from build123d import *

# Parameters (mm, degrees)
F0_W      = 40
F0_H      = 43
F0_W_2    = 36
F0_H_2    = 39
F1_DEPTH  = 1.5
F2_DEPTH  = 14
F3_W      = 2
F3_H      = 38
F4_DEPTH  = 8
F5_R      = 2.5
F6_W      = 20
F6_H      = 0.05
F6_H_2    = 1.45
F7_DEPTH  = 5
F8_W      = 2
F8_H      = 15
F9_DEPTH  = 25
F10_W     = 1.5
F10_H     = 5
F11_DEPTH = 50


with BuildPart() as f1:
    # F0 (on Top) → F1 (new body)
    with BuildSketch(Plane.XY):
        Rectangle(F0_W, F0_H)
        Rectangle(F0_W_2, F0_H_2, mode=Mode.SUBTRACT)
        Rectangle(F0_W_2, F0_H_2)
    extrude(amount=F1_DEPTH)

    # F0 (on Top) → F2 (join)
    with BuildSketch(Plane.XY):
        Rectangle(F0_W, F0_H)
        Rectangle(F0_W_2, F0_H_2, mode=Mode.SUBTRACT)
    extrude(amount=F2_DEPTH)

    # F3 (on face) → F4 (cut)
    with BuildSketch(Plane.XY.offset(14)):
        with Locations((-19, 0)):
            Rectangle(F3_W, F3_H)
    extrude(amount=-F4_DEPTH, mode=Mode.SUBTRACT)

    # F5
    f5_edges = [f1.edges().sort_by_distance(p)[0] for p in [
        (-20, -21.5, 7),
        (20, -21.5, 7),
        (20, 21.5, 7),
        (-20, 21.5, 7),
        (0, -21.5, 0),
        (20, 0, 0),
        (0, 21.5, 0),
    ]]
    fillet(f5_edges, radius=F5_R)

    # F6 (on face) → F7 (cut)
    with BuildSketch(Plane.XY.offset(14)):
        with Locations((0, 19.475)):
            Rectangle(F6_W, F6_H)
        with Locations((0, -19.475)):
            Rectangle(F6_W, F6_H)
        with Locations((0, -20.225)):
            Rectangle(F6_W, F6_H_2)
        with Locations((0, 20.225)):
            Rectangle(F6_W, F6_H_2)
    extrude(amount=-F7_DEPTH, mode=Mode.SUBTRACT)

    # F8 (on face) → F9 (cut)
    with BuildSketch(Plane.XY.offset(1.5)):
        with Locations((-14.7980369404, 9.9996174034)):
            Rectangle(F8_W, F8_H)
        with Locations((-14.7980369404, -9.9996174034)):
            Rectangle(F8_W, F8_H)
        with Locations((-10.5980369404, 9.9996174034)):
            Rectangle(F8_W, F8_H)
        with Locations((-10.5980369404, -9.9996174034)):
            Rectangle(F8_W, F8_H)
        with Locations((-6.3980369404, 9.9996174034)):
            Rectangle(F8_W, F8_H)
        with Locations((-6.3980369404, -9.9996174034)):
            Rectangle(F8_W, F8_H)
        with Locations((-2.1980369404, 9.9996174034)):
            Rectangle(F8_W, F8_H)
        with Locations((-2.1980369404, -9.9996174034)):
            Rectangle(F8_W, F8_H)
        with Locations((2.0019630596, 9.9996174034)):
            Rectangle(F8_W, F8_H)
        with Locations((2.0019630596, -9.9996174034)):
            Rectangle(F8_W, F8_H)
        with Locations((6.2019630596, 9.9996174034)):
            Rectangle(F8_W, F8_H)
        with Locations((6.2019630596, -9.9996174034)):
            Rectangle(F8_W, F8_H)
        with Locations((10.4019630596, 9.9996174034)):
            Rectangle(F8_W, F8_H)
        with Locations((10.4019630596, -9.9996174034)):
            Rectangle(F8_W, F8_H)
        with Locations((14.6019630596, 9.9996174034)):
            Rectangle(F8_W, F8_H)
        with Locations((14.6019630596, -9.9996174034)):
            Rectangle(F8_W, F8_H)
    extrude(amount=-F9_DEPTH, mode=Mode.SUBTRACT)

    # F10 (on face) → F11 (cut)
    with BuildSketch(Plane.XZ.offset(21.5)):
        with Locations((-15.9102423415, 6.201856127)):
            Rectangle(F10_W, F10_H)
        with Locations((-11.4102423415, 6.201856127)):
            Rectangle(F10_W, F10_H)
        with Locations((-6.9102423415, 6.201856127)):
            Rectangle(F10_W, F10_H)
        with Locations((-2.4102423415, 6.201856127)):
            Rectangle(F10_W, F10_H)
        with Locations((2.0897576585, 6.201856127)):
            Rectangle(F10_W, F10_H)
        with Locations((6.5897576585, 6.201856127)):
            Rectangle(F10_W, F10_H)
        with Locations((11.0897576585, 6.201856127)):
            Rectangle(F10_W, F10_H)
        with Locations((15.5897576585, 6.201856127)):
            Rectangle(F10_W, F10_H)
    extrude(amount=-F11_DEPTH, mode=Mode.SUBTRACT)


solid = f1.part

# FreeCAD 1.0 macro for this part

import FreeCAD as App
import Part
import Sketcher
from FreeCAD import Vector
Q = App.Units.Quantity


def edges_at(feature, points):
    """Names of the edges that pass closest to the given points."""
    edges = feature.Shape.Edges
    near = lambda p: min(range(len(edges)), key=lambda i: edges[i].distToShape(Part.Vertex(*p))[0])
    return sorted({f"Edge{near(p) + 1}" for p in points})


def add_polygon(sketch, points):
    """Adds a closed chain of lines whose ends are joined by coincident constraints."""
    first, n = sketch.GeometryCount, len(points)
    for a, b in zip(points, points[1:] + points[:1]):
        sketch.addGeometry(Part.LineSegment(App.Vector(*a, 0), App.Vector(*b, 0)), False)
    for i in range(n):
        sketch.addConstraint(Sketcher.Constraint("Coincident", first + i, 2, first + (i + 1) % n, 1))

doc = App.newDocument("Part")
body = doc.addObject("PartDesign::Body", "Body")

# Sketch on XY plane
sketch1 = body.newObject("Sketcher::SketchObject", "Sketch")
sketch1.AttachmentSupport = (doc.getObject("XY_Plane"), [""])
sketch1.MapMode = "FlatFace"
add_polygon(sketch1, [(-20, 22), (-20, -22), (20, -22), (20, 22)])  # lines 0-3
sketch1.addConstraint([
    Sketcher.Constraint("Vertical", 0),
    Sketcher.Constraint("Horizontal", 1),
    Sketcher.Constraint("Vertical", 2),
    Sketcher.Constraint("Horizontal", 3),
    Sketcher.Constraint("Symmetric", 0, 2, 2, 2, -1, 1),
    Sketcher.Constraint("DistanceX", 1, 1, 1, 2, Q("40 mm")),
    Sketcher.Constraint("DistanceY", 0, 2, 0, 1, Q("43 mm")),
])
pad1 = body.newObject("PartDesign::Pad", "Pad")
pad1.Profile = sketch1
pad1.Length = 1.5

# Sketch on XY plane
sketch2 = body.newObject("Sketcher::SketchObject", "Sketch001")
sketch2.AttachmentSupport = (doc.getObject("XY_Plane"), [""])
sketch2.MapMode = "FlatFace"
add_polygon(sketch2, [(-20, 22), (-20, -22), (20, -22), (20, 22)])  # lines 0-3
add_polygon(sketch2, [(18, -20), (-18, -20), (-18, 20), (18, 20)])  # lines 4-7
sketch2.addConstraint([
    Sketcher.Constraint("Vertical", 0),
    Sketcher.Constraint("Horizontal", 1),
    Sketcher.Constraint("Vertical", 2),
    Sketcher.Constraint("Horizontal", 3),
    Sketcher.Constraint("Horizontal", 4),
    Sketcher.Constraint("Vertical", 5),
    Sketcher.Constraint("Horizontal", 6),
    Sketcher.Constraint("Vertical", 7),
    Sketcher.Constraint("Symmetric", 0, 2, 2, 2, -1, 1),
    Sketcher.Constraint("Symmetric", 4, 2, 6, 2, -1, 1),
    Sketcher.Constraint("DistanceX", 1, 1, 1, 2, Q("40 mm")),
    Sketcher.Constraint("DistanceX", 4, 2, 4, 1, Q("36 mm")),
    Sketcher.Constraint("DistanceY", 0, 2, 0, 1, Q("43 mm")),
    Sketcher.Constraint("DistanceY", 5, 1, 5, 2, Q("39 mm")),
])
pad2 = body.newObject("PartDesign::Pad", "Pad001")
pad2.Profile = sketch2
pad2.Length = 14

# Sketch on XY plane
sketch3 = body.newObject("Sketcher::SketchObject", "Sketch002")
sketch3.AttachmentSupport = (doc.getObject("XY_Plane"), [""])
sketch3.MapMode = "FlatFace"
sketch3.AttachmentOffset = App.Placement(Vector(0, 0, 14), App.Rotation())
add_polygon(sketch3, [(-20, 19), (-20, -19), (-18, -19), (-18, 19)])  # lines 0-3
sketch3.addConstraint([
    Sketcher.Constraint("Vertical", 0),
    Sketcher.Constraint("Horizontal", 1),
    Sketcher.Constraint("Vertical", 2),
    Sketcher.Constraint("Horizontal", 3),
    Sketcher.Constraint("DistanceX", 1, 1, 1, 2, Q("2 mm")),
    Sketcher.Constraint("DistanceY", 0, 2, 0, 1, Q("38 mm")),
    Sketcher.Constraint("DistanceX", 0, 2, -1, 1, Q("20 mm")),
    Sketcher.Constraint("DistanceY", 0, 2, -1, 1, Q("19 mm")),
])
pocket1 = body.newObject("PartDesign::Pocket", "Pocket")
pocket1.Profile = sketch3
pocket1.Length = 8
doc.recompute()

fillet = body.newObject("PartDesign::Fillet", "Fillet")
fillet.Base = (pocket1, edges_at(pocket1, [
    (-20, -21.5, 7),
    (20, -21.5, 7),
    (20, 21.5, 7),
    (-20, 21.5, 7),
    (0, -21.5, 0),
    (20, 0, 0),
    (0, 21.5, 0),
]))
fillet.Radius = 2.5

# Sketch on XY plane
sketch4 = body.newObject("Sketcher::SketchObject", "Sketch003")
sketch4.AttachmentSupport = (doc.getObject("XY_Plane"), [""])
sketch4.MapMode = "FlatFace"
sketch4.AttachmentOffset = App.Placement(Vector(0, 0, 14), App.Rotation())
add_polygon(sketch4, [(-10, 19.4), (10, 19.4), (10, 20.9), (-10, 20.9)])  # lines 0-3
add_polygon(sketch4, [(-10, -19.4), (-10, -20.9), (10, -20.9), (10, -19.4)])  # lines 4-7
sketch4.addConstraint([
    Sketcher.Constraint("Horizontal", 0),
    Sketcher.Constraint("Vertical", 1),
    Sketcher.Constraint("Horizontal", 2),
    Sketcher.Constraint("Vertical", 3),
    Sketcher.Constraint("Vertical", 4),
    Sketcher.Constraint("Horizontal", 5),
    Sketcher.Constraint("Vertical", 6),
    Sketcher.Constraint("Horizontal", 7),
    Sketcher.Constraint("Symmetric", 1, 2, 4, 2, -1, 1),
    Sketcher.Constraint("Symmetric", 3, 2, 6, 2, -1, 1),
    Sketcher.Constraint("Vertical", 3, 2, 4, 2),
    Sketcher.Constraint("DistanceX", 0, 1, 0, 2, Q("20 mm")),
    Sketcher.Constraint("DistanceY", 1, 1, 1, 2, Q("1.5 mm")),
    Sketcher.Constraint("DistanceY", 4, 2, 3, 2, Q("40.4 mm")),
])
pocket2 = body.newObject("PartDesign::Pocket", "Pocket001")
pocket2.Profile = sketch4
pocket2.Length = 5

# Sketch on XY plane
sketch5 = body.newObject("Sketcher::SketchObject", "Sketch004")
sketch5.AttachmentSupport = (doc.getObject("XY_Plane"), [""])
sketch5.MapMode = "FlatFace"
sketch5.AttachmentOffset = App.Placement(Vector(0, 0, 1.5), App.Rotation())
add_polygon(sketch5, [(-15.8, 17.5), (-15.8, 2.5), (-13.8, 2.5), (-13.8, 17.5)])  # lines 0-3
add_polygon(sketch5, [(-15.8, -2.5), (-15.8, -17.5), (-13.8, -17.5), (-13.8, -2.5)])  # lines 4-7
add_polygon(sketch5, [(-11.6, 17.5), (-11.6, 2.5), (-9.6, 2.5), (-9.6, 17.5)])  # lines 8-11
add_polygon(sketch5, [(-11.6, -2.5), (-11.6, -17.5), (-9.6, -17.5), (-9.6, -2.5)])  # lines 12-15
add_polygon(sketch5, [(-7.4, 17.5), (-7.4, 2.5), (-5.4, 2.5), (-5.4, 17.5)])  # lines 16-19
add_polygon(sketch5, [(-7.4, -2.5), (-7.4, -17.5), (-5.4, -17.5), (-5.4, -2.5)])  # lines 20-23
add_polygon(sketch5, [(-3.2, 17.5), (-3.2, 2.5), (-1.2, 2.5), (-1.2, 17.5)])  # lines 24-27
add_polygon(sketch5, [(-3.2, -2.5), (-3.2, -17.5), (-1.2, -17.5), (-1.2, -2.5)])  # lines 28-31
add_polygon(sketch5, [(1, 17.5), (1, 2.5), (3, 2.5), (3, 17.5)])  # lines 32-35
add_polygon(sketch5, [(1, -2.5), (1, -17.5), (3, -17.5), (3, -2.5)])  # lines 36-39
add_polygon(sketch5, [(5.2, 17.5), (5.2, 2.5), (7.2, 2.5), (7.2, 17.5)])  # lines 40-43
add_polygon(sketch5, [(5.2, -2.5), (5.2, -17.5), (7.2, -17.5), (7.2, -2.5)])  # lines 44-47
add_polygon(sketch5, [(9.4, 17.5), (9.4, 2.5), (11.4, 2.5), (11.4, 17.5)])  # lines 48-51
add_polygon(sketch5, [(9.4, -2.5), (9.4, -17.5), (11.4, -17.5), (11.4, -2.5)])  # lines 52-55
add_polygon(sketch5, [(13.6, 17.5), (13.6, 2.5), (15.6, 2.5), (15.6, 17.5)])  # lines 56-59
add_polygon(sketch5, [(13.6, -2.5), (13.6, -17.5), (15.6, -17.5), (15.6, -2.5)])  # lines 60-63
sketch5.addConstraint([
    Sketcher.Constraint("Vertical", 0),
    Sketcher.Constraint("Horizontal", 1),
    Sketcher.Constraint("Vertical", 2),
    Sketcher.Constraint("Horizontal", 3),
    Sketcher.Constraint("Vertical", 4),
    Sketcher.Constraint("Horizontal", 5),
    Sketcher.Constraint("Vertical", 6),
    Sketcher.Constraint("Horizontal", 7),
    Sketcher.Constraint("Vertical", 8),
    Sketcher.Constraint("Horizontal", 9),
    Sketcher.Constraint("Vertical", 10),
    Sketcher.Constraint("Horizontal", 11),
    Sketcher.Constraint("Vertical", 12),
    Sketcher.Constraint("Horizontal", 13),
    Sketcher.Constraint("Vertical", 14),
    Sketcher.Constraint("Horizontal", 15),
    Sketcher.Constraint("Vertical", 16),
    Sketcher.Constraint("Horizontal", 17),
    Sketcher.Constraint("Vertical", 18),
    Sketcher.Constraint("Horizontal", 19),
    Sketcher.Constraint("Vertical", 20),
    Sketcher.Constraint("Horizontal", 21),
    Sketcher.Constraint("Vertical", 22),
    Sketcher.Constraint("Horizontal", 23),
    Sketcher.Constraint("Vertical", 24),
    Sketcher.Constraint("Horizontal", 25),
    Sketcher.Constraint("Vertical", 26),
    Sketcher.Constraint("Horizontal", 27),
    Sketcher.Constraint("Vertical", 28),
    Sketcher.Constraint("Horizontal", 29),
    Sketcher.Constraint("Vertical", 30),
    Sketcher.Constraint("Horizontal", 31),
    Sketcher.Constraint("Vertical", 32),
    Sketcher.Constraint("Horizontal", 33),
    Sketcher.Constraint("Vertical", 34),
    Sketcher.Constraint("Horizontal", 35),
    Sketcher.Constraint("Vertical", 36),
    Sketcher.Constraint("Horizontal", 37),
    Sketcher.Constraint("Vertical", 38),
    Sketcher.Constraint("Horizontal", 39),
    Sketcher.Constraint("Vertical", 40),
    Sketcher.Constraint("Horizontal", 41),
    Sketcher.Constraint("Vertical", 42),
    Sketcher.Constraint("Horizontal", 43),
    Sketcher.Constraint("Vertical", 44),
    Sketcher.Constraint("Horizontal", 45),
    Sketcher.Constraint("Vertical", 46),
    Sketcher.Constraint("Horizontal", 47),
    Sketcher.Constraint("Vertical", 48),
    Sketcher.Constraint("Horizontal", 49),
    Sketcher.Constraint("Vertical", 50),
    Sketcher.Constraint("Horizontal", 51),
    Sketcher.Constraint("Vertical", 52),
    Sketcher.Constraint("Horizontal", 53),
    Sketcher.Constraint("Vertical", 54),
    Sketcher.Constraint("Horizontal", 55),
    Sketcher.Constraint("Vertical", 56),
    Sketcher.Constraint("Horizontal", 57),
    Sketcher.Constraint("Vertical", 58),
    Sketcher.Constraint("Horizontal", 59),
    Sketcher.Constraint("Vertical", 60),
    Sketcher.Constraint("Horizontal", 61),
    Sketcher.Constraint("Vertical", 62),
    Sketcher.Constraint("Horizontal", 63),
    Sketcher.Constraint("Symmetric", 3, 2, 4, 2, -1),
    Sketcher.Constraint("Symmetric", 1, 2, 6, 2, -1),
    Sketcher.Constraint("Symmetric", 11, 2, 12, 2, -1),
    Sketcher.Constraint("Symmetric", 9, 2, 14, 2, -1),
    Sketcher.Constraint("Symmetric", 19, 2, 20, 2, -1),
    Sketcher.Constraint("Symmetric", 17, 2, 22, 2, -1),
    Sketcher.Constraint("Symmetric", 27, 2, 28, 2, -1),
    Sketcher.Constraint("Symmetric", 25, 2, 30, 2, -1),
    Sketcher.Constraint("Symmetric", 35, 2, 36, 2, -1),
    Sketcher.Constraint("Symmetric", 33, 2, 38, 2, -1),
    Sketcher.Constraint("Symmetric", 43, 2, 44, 2, -1),
    Sketcher.Constraint("Symmetric", 41, 2, 46, 2, -1),
    Sketcher.Constraint("Symmetric", 51, 2, 52, 2, -1),
    Sketcher.Constraint("Symmetric", 49, 2, 54, 2, -1),
    Sketcher.Constraint("Symmetric", 59, 2, 60, 2, -1),
    Sketcher.Constraint("Symmetric", 57, 2, 62, 2, -1),
    Sketcher.Constraint("Horizontal", 1, 2, 8, 2),
    Sketcher.Constraint("Horizontal", 3, 2, 10, 2),
    Sketcher.Constraint("Horizontal", 9, 2, 16, 2),
    Sketcher.Constraint("Horizontal", 11, 2, 18, 2),
    Sketcher.Constraint("Horizontal", 17, 2, 24, 2),
    Sketcher.Constraint("Horizontal", 19, 2, 26, 2),
    Sketcher.Constraint("Horizontal", 25, 2, 32, 2),
    Sketcher.Constraint("Horizontal", 27, 2, 34, 2),
    Sketcher.Constraint("Horizontal", 33, 2, 40, 2),
    Sketcher.Constraint("Horizontal", 35, 2, 42, 2),
    Sketcher.Constraint("Horizontal", 41, 2, 48, 2),
    Sketcher.Constraint("Horizontal", 43, 2, 50, 2),
    Sketcher.Constraint("Horizontal", 49, 2, 56, 2),
    Sketcher.Constraint("Horizontal", 51, 2, 58, 2),
    Sketcher.Constraint("Equal", 7, 9),
    Sketcher.Constraint("Equal", 15, 17),
    Sketcher.Constraint("Equal", 23, 25),
    Sketcher.Constraint("Equal", 31, 33),
    Sketcher.Constraint("Equal", 39, 41),
    Sketcher.Constraint("Equal", 47, 49),
    Sketcher.Constraint("Equal", 55, 57),
    Sketcher.Constraint("DistanceX", 1, 1, 1, 2, Q("2 mm")),
    Sketcher.Constraint("DistanceY", 0, 2, 0, 1, Q("15 mm")),
    Sketcher.Constraint("DistanceX", 0, 2, -1, 1, Q("15.798037 mm")),
    Sketcher.Constraint("DistanceY", -1, 1, 0, 2, Q("2.499617 mm")),
    Sketcher.Constraint("DistanceX", 8, 2, -1, 1, Q("11.598037 mm")),
    Sketcher.Constraint("DistanceX", 16, 2, -1, 1, Q("7.398037 mm")),
    Sketcher.Constraint("DistanceX", 24, 2, -1, 1, Q("3.198037 mm")),
    Sketcher.Constraint("DistanceX", -1, 1, 32, 2, Q("1.001963 mm")),
    Sketcher.Constraint("DistanceX", -1, 1, 40, 2, Q("5.201963 mm")),
    Sketcher.Constraint("DistanceX", -1, 1, 48, 2, Q("9.401963 mm")),
    Sketcher.Constraint("DistanceX", -1, 1, 56, 2, Q("13.601963 mm")),
])
pocket3 = body.newObject("PartDesign::Pocket", "Pocket002")
pocket3.Profile = sketch5
pocket3.Length = 25

# Sketch on XZ plane
sketch6 = body.newObject("Sketcher::SketchObject", "Sketch005")
sketch6.AttachmentSupport = (doc.getObject("XZ_Plane"), [""])
sketch6.MapMode = "FlatFace"
sketch6.AttachmentOffset = App.Placement(Vector(0, 0, 21.5), App.Rotation())
add_polygon(sketch6, [(-16.7, 8.7), (-16.7, 3.7), (-15.2, 3.7), (-15.2, 8.7)])  # lines 0-3
add_polygon(sketch6, [(-12.2, 8.7), (-12.2, 3.7), (-10.7, 3.7), (-10.7, 8.7)])  # lines 4-7
add_polygon(sketch6, [(-7.7, 8.7), (-7.7, 3.7), (-6.2, 3.7), (-6.2, 8.7)])  # lines 8-11
add_polygon(sketch6, [(-3.2, 8.7), (-3.2, 3.7), (-1.7, 3.7), (-1.7, 8.7)])  # lines 12-15
add_polygon(sketch6, [(1.3, 8.7), (1.3, 3.7), (2.8, 3.7), (2.8, 8.7)])  # lines 16-19
add_polygon(sketch6, [(5.8, 8.7), (5.8, 3.7), (7.3, 3.7), (7.3, 8.7)])  # lines 20-23
add_polygon(sketch6, [(10.3, 8.7), (10.3, 3.7), (11.8, 3.7), (11.8, 8.7)])  # lines 24-27
add_polygon(sketch6, [(14.8, 8.7), (14.8, 3.7), (16.3, 3.7), (16.3, 8.7)])  # lines 28-31
sketch6.addConstraint([
    Sketcher.Constraint("Vertical", 0),
    Sketcher.Constraint("Horizontal", 1),
    Sketcher.Constraint("Vertical", 2),
    Sketcher.Constraint("Horizontal", 3),
    Sketcher.Constraint("Vertical", 4),
    Sketcher.Constraint("Horizontal", 5),
    Sketcher.Constraint("Vertical", 6),
    Sketcher.Constraint("Horizontal", 7),
    Sketcher.Constraint("Vertical", 8),
    Sketcher.Constraint("Horizontal", 9),
    Sketcher.Constraint("Vertical", 10),
    Sketcher.Constraint("Horizontal", 11),
    Sketcher.Constraint("Vertical", 12),
    Sketcher.Constraint("Horizontal", 13),
    Sketcher.Constraint("Vertical", 14),
    Sketcher.Constraint("Horizontal", 15),
    Sketcher.Constraint("Vertical", 16),
    Sketcher.Constraint("Horizontal", 17),
    Sketcher.Constraint("Vertical", 18),
    Sketcher.Constraint("Horizontal", 19),
    Sketcher.Constraint("Vertical", 20),
    Sketcher.Constraint("Horizontal", 21),
    Sketcher.Constraint("Vertical", 22),
    Sketcher.Constraint("Horizontal", 23),
    Sketcher.Constraint("Vertical", 24),
    Sketcher.Constraint("Horizontal", 25),
    Sketcher.Constraint("Vertical", 26),
    Sketcher.Constraint("Horizontal", 27),
    Sketcher.Constraint("Vertical", 28),
    Sketcher.Constraint("Horizontal", 29),
    Sketcher.Constraint("Vertical", 30),
    Sketcher.Constraint("Horizontal", 31),
    Sketcher.Constraint("Horizontal", 1, 2, 4, 2),
    Sketcher.Constraint("Horizontal", 3, 2, 6, 2),
    Sketcher.Constraint("Horizontal", 5, 2, 8, 2),
    Sketcher.Constraint("Horizontal", 7, 2, 10, 2),
    Sketcher.Constraint("Horizontal", 9, 2, 12, 2),
    Sketcher.Constraint("Horizontal", 11, 2, 14, 2),
    Sketcher.Constraint("Horizontal", 13, 2, 16, 2),
    Sketcher.Constraint("Horizontal", 15, 2, 18, 2),
    Sketcher.Constraint("Horizontal", 17, 2, 20, 2),
    Sketcher.Constraint("Horizontal", 19, 2, 22, 2),
    Sketcher.Constraint("Horizontal", 21, 2, 24, 2),
    Sketcher.Constraint("Horizontal", 23, 2, 26, 2),
    Sketcher.Constraint("Horizontal", 25, 2, 28, 2),
    Sketcher.Constraint("Horizontal", 27, 2, 30, 2),
    Sketcher.Constraint("Equal", 3, 5),
    Sketcher.Constraint("Equal", 7, 9),
    Sketcher.Constraint("Equal", 11, 13),
    Sketcher.Constraint("Equal", 15, 17),
    Sketcher.Constraint("Equal", 19, 21),
    Sketcher.Constraint("Equal", 23, 25),
    Sketcher.Constraint("Equal", 27, 29),
    Sketcher.Constraint("DistanceY", 0, 2, 0, 1, Q("5 mm")),
    Sketcher.Constraint("DistanceX", 1, 1, 1, 2, Q("1.5 mm")),
    Sketcher.Constraint("DistanceX", 1, 2, 4, 2, Q("3 mm")),
    Sketcher.Constraint("DistanceX", 5, 2, 8, 2, Q("3 mm")),
    Sketcher.Constraint("DistanceX", 9, 2, 12, 2, Q("3 mm")),
    Sketcher.Constraint("DistanceX", 13, 2, 16, 2, Q("3 mm")),
    Sketcher.Constraint("DistanceX", 17, 2, 20, 2, Q("3 mm")),
    Sketcher.Constraint("DistanceX", 21, 2, 24, 2, Q("3 mm")),
    Sketcher.Constraint("DistanceX", 25, 2, 28, 2, Q("3 mm")),
    Sketcher.Constraint("DistanceX", 0, 2, -1, 1, Q("16.660242 mm")),
    Sketcher.Constraint("DistanceY", -1, 1, 0, 2, Q("3.701856 mm")),
])
pocket4 = body.newObject("PartDesign::Pocket", "Pocket003")
pocket4.Profile = sketch6
pocket4.Length = 50

doc.recompute()
